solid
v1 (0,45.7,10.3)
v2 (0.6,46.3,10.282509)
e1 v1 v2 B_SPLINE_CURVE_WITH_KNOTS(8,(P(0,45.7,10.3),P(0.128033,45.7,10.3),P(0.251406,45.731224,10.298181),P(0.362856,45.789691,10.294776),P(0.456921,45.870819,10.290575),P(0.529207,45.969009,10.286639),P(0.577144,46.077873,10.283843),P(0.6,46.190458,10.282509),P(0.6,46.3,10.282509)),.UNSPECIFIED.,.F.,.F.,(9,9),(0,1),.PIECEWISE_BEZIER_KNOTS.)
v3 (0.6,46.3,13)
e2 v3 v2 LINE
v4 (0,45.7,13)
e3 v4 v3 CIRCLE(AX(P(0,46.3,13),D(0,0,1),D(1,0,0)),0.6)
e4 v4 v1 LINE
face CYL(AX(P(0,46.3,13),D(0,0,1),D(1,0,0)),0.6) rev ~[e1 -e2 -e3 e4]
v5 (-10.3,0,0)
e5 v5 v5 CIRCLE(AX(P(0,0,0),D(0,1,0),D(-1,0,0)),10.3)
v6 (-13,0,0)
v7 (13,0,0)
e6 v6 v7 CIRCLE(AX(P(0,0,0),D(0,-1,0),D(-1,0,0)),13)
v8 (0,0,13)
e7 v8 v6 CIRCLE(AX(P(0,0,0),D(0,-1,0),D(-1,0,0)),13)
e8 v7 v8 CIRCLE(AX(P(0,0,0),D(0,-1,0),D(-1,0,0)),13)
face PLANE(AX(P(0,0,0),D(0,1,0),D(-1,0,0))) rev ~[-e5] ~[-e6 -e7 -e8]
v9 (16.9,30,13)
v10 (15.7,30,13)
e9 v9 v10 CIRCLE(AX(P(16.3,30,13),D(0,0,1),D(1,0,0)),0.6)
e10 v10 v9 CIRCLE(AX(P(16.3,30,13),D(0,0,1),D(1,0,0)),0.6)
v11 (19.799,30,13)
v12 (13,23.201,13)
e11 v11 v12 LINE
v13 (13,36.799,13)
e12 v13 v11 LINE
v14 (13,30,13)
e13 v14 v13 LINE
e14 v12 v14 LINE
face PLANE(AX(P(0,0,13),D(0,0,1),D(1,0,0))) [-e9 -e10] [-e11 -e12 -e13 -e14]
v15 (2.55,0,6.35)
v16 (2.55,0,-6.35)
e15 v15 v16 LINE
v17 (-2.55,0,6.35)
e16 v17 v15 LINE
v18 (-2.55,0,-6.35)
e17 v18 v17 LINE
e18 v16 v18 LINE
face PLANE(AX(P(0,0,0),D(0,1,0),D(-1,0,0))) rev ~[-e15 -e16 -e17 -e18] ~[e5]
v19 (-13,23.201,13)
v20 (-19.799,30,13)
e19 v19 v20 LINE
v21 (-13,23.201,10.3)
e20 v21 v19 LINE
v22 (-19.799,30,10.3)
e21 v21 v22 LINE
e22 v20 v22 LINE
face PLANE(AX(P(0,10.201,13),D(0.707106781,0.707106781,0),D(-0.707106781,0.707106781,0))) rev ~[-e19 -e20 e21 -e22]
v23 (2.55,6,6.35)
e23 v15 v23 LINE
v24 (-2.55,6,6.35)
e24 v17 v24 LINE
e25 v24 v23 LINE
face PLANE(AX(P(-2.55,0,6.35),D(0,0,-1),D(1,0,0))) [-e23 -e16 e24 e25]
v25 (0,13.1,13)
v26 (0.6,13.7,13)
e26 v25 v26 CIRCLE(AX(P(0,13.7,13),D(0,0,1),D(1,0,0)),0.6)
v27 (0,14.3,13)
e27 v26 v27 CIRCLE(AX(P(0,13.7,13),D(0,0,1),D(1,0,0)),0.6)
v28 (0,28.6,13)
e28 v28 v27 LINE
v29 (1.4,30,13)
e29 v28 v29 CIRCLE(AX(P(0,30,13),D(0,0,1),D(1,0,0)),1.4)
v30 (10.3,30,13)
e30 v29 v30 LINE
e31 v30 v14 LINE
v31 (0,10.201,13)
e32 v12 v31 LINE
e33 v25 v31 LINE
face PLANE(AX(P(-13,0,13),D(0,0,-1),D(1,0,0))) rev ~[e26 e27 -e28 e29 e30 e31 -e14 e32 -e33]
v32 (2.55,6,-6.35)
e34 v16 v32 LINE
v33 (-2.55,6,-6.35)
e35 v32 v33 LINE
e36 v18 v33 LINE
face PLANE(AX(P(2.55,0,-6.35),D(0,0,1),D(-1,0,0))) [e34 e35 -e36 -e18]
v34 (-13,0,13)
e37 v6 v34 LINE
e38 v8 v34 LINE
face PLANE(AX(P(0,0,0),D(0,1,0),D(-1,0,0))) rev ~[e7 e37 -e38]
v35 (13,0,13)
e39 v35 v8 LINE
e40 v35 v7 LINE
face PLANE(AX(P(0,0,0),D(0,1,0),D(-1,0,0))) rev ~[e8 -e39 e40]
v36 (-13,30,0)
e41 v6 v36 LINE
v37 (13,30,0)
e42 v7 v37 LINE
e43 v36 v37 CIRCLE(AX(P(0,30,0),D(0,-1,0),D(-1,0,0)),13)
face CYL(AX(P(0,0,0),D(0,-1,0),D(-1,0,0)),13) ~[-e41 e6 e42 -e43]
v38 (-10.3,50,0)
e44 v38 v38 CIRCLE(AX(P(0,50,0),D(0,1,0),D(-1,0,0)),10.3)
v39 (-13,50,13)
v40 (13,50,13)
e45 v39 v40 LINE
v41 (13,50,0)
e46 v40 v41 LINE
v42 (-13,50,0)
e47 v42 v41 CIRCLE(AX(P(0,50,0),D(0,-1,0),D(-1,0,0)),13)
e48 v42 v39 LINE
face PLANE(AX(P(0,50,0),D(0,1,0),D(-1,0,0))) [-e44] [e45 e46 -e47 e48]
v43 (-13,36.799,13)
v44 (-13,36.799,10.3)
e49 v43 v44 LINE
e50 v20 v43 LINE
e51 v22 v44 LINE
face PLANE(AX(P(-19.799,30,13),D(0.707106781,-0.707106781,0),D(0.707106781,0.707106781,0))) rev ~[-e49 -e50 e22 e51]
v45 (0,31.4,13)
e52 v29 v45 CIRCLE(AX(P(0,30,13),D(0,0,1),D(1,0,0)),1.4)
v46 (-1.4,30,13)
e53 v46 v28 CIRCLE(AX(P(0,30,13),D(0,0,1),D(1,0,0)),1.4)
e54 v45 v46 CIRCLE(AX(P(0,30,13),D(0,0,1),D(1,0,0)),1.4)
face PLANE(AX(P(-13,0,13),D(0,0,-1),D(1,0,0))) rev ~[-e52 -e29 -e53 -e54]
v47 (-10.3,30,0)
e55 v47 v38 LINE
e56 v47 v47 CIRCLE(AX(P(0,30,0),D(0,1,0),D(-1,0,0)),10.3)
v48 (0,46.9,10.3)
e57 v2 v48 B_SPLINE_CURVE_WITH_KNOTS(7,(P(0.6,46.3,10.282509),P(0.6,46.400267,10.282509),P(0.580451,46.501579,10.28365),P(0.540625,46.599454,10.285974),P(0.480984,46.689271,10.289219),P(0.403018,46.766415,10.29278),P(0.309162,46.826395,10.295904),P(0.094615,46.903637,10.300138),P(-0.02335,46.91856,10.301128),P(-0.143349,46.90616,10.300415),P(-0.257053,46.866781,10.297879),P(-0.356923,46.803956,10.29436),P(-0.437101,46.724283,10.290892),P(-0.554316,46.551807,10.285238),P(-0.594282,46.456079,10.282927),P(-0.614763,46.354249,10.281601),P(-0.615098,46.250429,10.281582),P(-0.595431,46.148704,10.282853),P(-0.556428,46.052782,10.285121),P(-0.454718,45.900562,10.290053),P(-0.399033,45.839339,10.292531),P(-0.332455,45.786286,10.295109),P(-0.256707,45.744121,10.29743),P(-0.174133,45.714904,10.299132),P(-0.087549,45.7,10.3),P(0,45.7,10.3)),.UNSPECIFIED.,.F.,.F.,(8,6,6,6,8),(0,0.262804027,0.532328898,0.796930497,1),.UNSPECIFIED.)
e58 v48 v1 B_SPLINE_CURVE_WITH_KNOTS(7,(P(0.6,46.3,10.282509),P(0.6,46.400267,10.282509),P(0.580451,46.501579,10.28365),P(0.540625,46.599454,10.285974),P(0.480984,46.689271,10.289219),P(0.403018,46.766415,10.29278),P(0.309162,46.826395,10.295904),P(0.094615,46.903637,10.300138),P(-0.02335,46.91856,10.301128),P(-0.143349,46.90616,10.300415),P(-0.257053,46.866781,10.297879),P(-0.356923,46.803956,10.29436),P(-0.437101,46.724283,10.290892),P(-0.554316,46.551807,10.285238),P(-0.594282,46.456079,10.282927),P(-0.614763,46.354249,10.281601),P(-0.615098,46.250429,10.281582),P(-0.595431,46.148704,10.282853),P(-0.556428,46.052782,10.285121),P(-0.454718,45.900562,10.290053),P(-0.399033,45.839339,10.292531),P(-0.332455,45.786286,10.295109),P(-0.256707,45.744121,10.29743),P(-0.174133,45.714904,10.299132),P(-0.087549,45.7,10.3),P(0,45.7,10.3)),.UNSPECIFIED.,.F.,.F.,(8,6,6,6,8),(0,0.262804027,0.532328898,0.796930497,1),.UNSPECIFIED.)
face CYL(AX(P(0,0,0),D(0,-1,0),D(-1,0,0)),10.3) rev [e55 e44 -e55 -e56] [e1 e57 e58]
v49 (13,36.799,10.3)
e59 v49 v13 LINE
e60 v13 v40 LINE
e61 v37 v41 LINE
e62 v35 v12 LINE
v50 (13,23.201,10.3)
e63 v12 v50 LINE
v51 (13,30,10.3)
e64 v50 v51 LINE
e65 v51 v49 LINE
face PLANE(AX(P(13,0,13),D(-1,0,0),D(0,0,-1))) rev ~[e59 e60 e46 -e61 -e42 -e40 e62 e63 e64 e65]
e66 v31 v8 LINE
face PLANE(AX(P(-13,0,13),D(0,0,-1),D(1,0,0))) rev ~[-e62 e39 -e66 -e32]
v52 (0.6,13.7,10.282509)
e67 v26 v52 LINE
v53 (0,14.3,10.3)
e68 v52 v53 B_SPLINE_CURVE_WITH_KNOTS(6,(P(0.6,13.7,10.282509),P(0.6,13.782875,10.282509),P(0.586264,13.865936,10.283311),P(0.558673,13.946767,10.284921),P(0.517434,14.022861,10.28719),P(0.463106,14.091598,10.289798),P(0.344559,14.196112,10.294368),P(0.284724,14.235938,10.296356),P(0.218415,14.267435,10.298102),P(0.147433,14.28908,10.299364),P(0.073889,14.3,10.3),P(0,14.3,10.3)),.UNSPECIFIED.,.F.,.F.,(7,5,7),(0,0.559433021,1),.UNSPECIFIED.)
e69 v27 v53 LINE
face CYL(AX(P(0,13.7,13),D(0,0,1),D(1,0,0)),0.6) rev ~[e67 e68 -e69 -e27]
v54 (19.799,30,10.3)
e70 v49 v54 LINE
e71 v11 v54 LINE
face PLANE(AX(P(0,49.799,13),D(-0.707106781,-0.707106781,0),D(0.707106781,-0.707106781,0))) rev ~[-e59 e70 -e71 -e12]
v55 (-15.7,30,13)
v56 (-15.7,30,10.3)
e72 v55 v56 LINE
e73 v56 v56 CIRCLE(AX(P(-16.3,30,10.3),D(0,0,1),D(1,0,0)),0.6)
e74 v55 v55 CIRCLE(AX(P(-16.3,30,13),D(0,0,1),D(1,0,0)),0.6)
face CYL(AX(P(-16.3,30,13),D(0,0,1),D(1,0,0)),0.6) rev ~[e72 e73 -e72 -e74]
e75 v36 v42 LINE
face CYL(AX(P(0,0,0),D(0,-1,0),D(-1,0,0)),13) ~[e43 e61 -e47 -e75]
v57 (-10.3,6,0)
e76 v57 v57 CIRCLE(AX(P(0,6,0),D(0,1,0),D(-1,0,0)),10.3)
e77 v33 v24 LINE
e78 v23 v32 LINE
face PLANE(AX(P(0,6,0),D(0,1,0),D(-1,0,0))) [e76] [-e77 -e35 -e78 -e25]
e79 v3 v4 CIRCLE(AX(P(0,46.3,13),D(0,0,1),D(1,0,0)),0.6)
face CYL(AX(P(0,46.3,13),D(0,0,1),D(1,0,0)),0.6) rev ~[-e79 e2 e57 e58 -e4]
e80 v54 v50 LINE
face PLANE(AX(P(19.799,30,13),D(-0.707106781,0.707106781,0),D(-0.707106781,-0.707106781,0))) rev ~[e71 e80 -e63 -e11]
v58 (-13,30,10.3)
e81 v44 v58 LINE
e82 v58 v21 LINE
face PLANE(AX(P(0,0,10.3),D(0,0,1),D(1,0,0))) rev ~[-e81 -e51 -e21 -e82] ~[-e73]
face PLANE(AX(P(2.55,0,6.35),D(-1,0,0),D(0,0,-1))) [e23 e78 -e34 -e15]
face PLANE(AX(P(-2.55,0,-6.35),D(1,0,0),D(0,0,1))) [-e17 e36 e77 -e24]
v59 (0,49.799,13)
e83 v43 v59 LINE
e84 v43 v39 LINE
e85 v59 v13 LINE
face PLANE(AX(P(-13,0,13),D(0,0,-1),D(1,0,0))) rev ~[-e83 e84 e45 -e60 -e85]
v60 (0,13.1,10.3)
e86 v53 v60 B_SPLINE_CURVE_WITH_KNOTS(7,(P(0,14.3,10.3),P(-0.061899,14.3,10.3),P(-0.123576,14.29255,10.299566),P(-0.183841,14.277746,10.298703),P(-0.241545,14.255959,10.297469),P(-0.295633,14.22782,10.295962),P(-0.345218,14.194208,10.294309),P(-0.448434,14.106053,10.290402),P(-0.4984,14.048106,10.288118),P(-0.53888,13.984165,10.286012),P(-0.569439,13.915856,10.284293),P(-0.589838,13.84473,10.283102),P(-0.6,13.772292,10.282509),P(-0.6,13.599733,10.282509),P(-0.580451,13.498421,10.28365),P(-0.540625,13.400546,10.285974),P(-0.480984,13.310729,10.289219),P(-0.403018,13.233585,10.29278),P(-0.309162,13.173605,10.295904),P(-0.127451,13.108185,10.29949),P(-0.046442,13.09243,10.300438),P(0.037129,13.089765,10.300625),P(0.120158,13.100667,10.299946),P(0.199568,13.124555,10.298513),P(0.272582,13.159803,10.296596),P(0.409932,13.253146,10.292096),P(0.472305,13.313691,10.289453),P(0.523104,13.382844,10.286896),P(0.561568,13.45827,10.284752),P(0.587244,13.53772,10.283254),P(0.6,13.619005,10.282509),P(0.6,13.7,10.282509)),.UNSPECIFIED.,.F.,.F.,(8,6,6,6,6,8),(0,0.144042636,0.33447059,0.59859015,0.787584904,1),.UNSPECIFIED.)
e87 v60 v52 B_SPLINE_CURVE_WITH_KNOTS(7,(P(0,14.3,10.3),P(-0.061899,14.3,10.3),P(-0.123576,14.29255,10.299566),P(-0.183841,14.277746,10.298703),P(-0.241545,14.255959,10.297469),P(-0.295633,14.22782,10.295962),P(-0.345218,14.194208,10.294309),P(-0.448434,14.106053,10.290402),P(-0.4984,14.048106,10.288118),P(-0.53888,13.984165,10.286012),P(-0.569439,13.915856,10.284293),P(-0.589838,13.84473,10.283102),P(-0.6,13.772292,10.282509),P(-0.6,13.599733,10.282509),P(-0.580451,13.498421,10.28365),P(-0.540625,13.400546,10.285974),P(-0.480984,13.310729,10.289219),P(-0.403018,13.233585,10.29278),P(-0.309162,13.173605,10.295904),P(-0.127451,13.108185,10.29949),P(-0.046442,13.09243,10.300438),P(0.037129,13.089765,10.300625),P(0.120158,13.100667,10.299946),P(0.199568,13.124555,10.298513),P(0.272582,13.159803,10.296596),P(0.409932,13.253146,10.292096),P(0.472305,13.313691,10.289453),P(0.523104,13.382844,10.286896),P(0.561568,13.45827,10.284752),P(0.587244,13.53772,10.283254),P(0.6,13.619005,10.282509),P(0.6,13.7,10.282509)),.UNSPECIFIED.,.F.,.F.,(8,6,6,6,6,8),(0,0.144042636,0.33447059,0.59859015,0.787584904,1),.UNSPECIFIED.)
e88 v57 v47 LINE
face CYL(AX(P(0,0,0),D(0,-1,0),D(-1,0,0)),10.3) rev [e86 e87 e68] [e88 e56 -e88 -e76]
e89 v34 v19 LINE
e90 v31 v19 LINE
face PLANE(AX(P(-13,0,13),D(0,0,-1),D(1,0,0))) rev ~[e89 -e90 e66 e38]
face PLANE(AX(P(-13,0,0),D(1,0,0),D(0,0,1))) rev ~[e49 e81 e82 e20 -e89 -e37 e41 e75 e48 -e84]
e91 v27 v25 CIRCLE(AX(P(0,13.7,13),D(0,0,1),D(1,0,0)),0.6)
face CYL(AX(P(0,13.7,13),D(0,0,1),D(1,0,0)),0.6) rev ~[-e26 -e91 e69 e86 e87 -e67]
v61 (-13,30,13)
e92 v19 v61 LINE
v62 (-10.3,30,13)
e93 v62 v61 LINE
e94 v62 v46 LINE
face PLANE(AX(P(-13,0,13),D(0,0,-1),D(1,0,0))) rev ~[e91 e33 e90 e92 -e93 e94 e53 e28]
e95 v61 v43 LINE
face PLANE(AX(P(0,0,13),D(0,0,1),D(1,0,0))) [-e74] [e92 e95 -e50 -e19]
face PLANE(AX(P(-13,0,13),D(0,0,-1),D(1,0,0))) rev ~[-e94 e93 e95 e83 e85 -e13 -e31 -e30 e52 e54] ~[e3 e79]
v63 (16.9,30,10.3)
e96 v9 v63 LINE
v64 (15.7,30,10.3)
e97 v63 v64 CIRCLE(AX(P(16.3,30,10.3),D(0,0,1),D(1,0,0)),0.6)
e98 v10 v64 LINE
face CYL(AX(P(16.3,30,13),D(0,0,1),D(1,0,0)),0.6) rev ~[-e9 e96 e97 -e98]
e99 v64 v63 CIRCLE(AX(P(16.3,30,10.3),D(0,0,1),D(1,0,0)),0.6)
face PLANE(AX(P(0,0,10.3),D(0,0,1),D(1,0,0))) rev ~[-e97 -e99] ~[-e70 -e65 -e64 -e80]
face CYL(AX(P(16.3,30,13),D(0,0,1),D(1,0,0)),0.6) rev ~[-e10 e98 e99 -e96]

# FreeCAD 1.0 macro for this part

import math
import FreeCAD as App
import Part
import Sketcher

V = App.Vector

doc = App.newDocument("Part")
body = doc.addObject("PartDesign::Body", "Body")

# Sketch on XZ plane
sketch1 = doc.addObject("Sketcher::SketchObject", "Sketch")
body.addObject(sketch1)
sketch1.AttachmentSupport = (doc.XZ_Plane, [""])
sketch1.MapMode = "FlatFace"
sketch1.addGeometry(Part.Circle(V(0, 0, 0), V(0, 0, 1), 10), False)
sketch1.addGeometry(Part.LineSegment(V(3, 6, 0), V(-3, 6, 0)), False)
sketch1.addGeometry(Part.LineSegment(V(-3, 6, 0), V(-3, -6, 0)), False)
sketch1.addGeometry(Part.LineSegment(V(-3, -6, 0), V(3, -6, 0)), False)
sketch1.addGeometry(Part.LineSegment(V(3, -6, 0), V(3, 6, 0)), False)
sketch1.addConstraint(Sketcher.Constraint("Coincident", 1, 2, 2, 1))
sketch1.addConstraint(Sketcher.Constraint("Coincident", 2, 2, 3, 1))
sketch1.addConstraint(Sketcher.Constraint("Coincident", 3, 2, 4, 1))
sketch1.addConstraint(Sketcher.Constraint("Coincident", 4, 2, 1, 1))
sketch1.addConstraint(Sketcher.Constraint("Horizontal", 1))
sketch1.addConstraint(Sketcher.Constraint("Vertical", 2))
sketch1.addConstraint(Sketcher.Constraint("Horizontal", 3))
sketch1.addConstraint(Sketcher.Constraint("Vertical", 4))
sketch1.addConstraint(Sketcher.Constraint("Coincident", 0, 3, -1, 1))
sketch1.addConstraint(Sketcher.Constraint("Symmetric", 1, 2, 3, 2, -1, 1))
sketch1.addConstraint(Sketcher.Constraint("Diameter", 0, 20.6))
sketch1.addConstraint(Sketcher.Constraint("DistanceX", 1, 2, 1, 1, 5.1))
sketch1.addConstraint(Sketcher.Constraint("DistanceY", 2, 2, 2, 1, 12.7))
pad1 = doc.addObject("PartDesign::Pad", "Pad")
body.addObject(pad1)
pad1.Profile = sketch1
pad1.Length = 6
pad1.Reversed = True

# Sketch on XZ plane
sketch2 = doc.addObject("Sketcher::SketchObject", "Sketch001")
body.addObject(sketch2)
sketch2.AttachmentSupport = (doc.XZ_Plane, [""])
sketch2.MapMode = "FlatFace"
sketch2.addGeometry(Part.Circle(V(0, 0, 0), V(0, 0, 1), 13), False)
sketch2.addGeometry(Part.Circle(V(0, 0, 0), V(0, 0, 1), 10), False)
sketch2.addConstraint(Sketcher.Constraint("Coincident", 0, 3, -1, 1))
sketch2.addConstraint(Sketcher.Constraint("Coincident", 1, 3, -1, 1))
sketch2.addConstraint(Sketcher.Constraint("Diameter", 0, 26.0))
sketch2.addConstraint(Sketcher.Constraint("Diameter", 1, 20.6))
pad2 = doc.addObject("PartDesign::Pad", "Pad001")
body.addObject(pad2)
pad2.Profile = sketch2
pad2.Length = 30
pad2.Reversed = True

# Sketch on XZ plane
sketch3 = doc.addObject("Sketcher::SketchObject", "Sketch002")
body.addObject(sketch3)
sketch3.AttachmentSupport = (doc.XZ_Plane, [""])
sketch3.MapMode = "FlatFace"
sketch3.addGeometry(Part.LineSegment(V(-13, 0, 0), V(-13, 13, 0)), False)
sketch3.addGeometry(Part.LineSegment(V(-13, 13, 0), V(13, 13, 0)), False)
sketch3.addGeometry(Part.LineSegment(V(13, 13, 0), V(13, 0, 0)), False)
sketch3.addGeometry(Part.ArcOfCircle(Part.Circle(V(0, 0, 0), V(0, 0, 1), 13), math.radians(180), math.radians(360)), False)
sketch3.addGeometry(Part.Circle(V(0, 0, 0), V(0, 0, 1), 10), False)
sketch3.addConstraint(Sketcher.Constraint("Coincident", 0, 2, 1, 1))
sketch3.addConstraint(Sketcher.Constraint("Coincident", 1, 2, 2, 1))
sketch3.addConstraint(Sketcher.Constraint("Tangent", 2, 2, 3, 2))
sketch3.addConstraint(Sketcher.Constraint("Tangent", 3, 1, 0, 1))
sketch3.addConstraint(Sketcher.Constraint("Vertical", 0))
sketch3.addConstraint(Sketcher.Constraint("Horizontal", 1))
sketch3.addConstraint(Sketcher.Constraint("Vertical", 2))
sketch3.addConstraint(Sketcher.Constraint("Coincident", 3, 3, -1, 1))
sketch3.addConstraint(Sketcher.Constraint("Coincident", 4, 3, -1, 1))
sketch3.addConstraint(Sketcher.Constraint("Radius", 3, 13.0))
sketch3.addConstraint(Sketcher.Constraint("Diameter", 4, 20.6))
sketch3.addConstraint(Sketcher.Constraint("DistanceY", 0, 1, 0, 2, 13.0))
pad3 = doc.addObject("PartDesign::Pad", "Pad002")
body.addObject(pad3)
pad3.Profile = sketch3
pad3.Length = 50
pad3.Reversed = True

# Sketch on XY plane
sketch4 = doc.addObject("Sketcher::SketchObject", "Sketch003")
body.addObject(sketch4)
sketch4.AttachmentSupport = (doc.XY_Plane, [""])
sketch4.MapMode = "FlatFace"
sketch4.AttachmentOffset = App.Placement(V(0, 0, 13), App.Rotation())
sketch4.addGeometry(Part.LineSegment(V(0, 10.2, 0), V(19.8, 30, 0)), False)
sketch4.addGeometry(Part.LineSegment(V(19.8, 30, 0), V(0, 49.8, 0)), False)
sketch4.addGeometry(Part.LineSegment(V(0, 49.8, 0), V(-19.8, 30, 0)), False)
sketch4.addGeometry(Part.LineSegment(V(-19.8, 30, 0), V(0, 10.2, 0)), False)
sketch4.addGeometry(Part.Circle(V(0, 13.7, 0), V(0, 0, 1), 0.6), False)
sketch4.addGeometry(Part.Circle(V(-16.3, 30, 0), V(0, 0, 1), 0.6), False)
sketch4.addGeometry(Part.ArcOfCircle(Part.Circle(V(0, 30, 0), V(0, 0, 1), 1.4), math.radians(0), math.radians(90)), False)
sketch4.addGeometry(Part.ArcOfCircle(Part.Circle(V(0, 30, 0), V(0, 0, 1), 1.4), math.radians(-90), math.radians(0)), False)
sketch4.addGeometry(Part.ArcOfCircle(Part.Circle(V(0, 30, 0), V(0, 0, 1), 1.4), math.radians(180), math.radians(270)), False)
sketch4.addGeometry(Part.ArcOfCircle(Part.Circle(V(0, 30, 0), V(0, 0, 1), 1.4), math.radians(90), math.radians(180)), False)
sketch4.addGeometry(Part.Circle(V(16.3, 30, 0), V(0, 0, 1), 0.6), False)
sketch4.addGeometry(Part.Circle(V(0, 46.3, 0), V(0, 0, 1), 0.6), False)
sketch4.addConstraint(Sketcher.Constraint("Coincident", 0, 2, 1, 1))
sketch4.addConstraint(Sketcher.Constraint("Coincident", 1, 2, 2, 1))
sketch4.addConstraint(Sketcher.Constraint("Coincident", 2, 2, 3, 1))
sketch4.addConstraint(Sketcher.Constraint("Coincident", 3, 2, 0, 1))
sketch4.addConstraint(Sketcher.Constraint("Tangent", 6, 1, 7, 2))
sketch4.addConstraint(Sketcher.Constraint("Tangent", 7, 1, 8, 2))
sketch4.addConstraint(Sketcher.Constraint("Tangent", 8, 1, 9, 2))
sketch4.addConstraint(Sketcher.Constraint("Tangent", 9, 1, 6, 2))
sketch4.addConstraint(Sketcher.Constraint("Equal", 4, 5))
sketch4.addConstraint(Sketcher.Constraint("Equal", 6, 7))
sketch4.addConstraint(Sketcher.Constraint("Equal", 5, 10))
sketch4.addConstraint(Sketcher.Constraint("Equal", 10, 11))
sketch4.addConstraint(Sketcher.Constraint("Symmetric", 5, 3, 10, 3, -2))
sketch4.addConstraint(Sketcher.Constraint("Symmetric", 0, 2, 2, 2, -2))
sketch4.addConstraint(Sketcher.Constraint("Symmetric", 6, 1, 8, 1, -2))
sketch4.addConstraint(Sketcher.Constraint("PointOnObject", 4, 3, -2))
sketch4.addConstraint(Sketcher.Constraint("PointOnObject", 11, 3, -2))
sketch4.addConstraint(Sketcher.Constraint("PointOnObject", 1, 2, -2))
sketch4.addConstraint(Sketcher.Constraint("PointOnObject", 3, 2, -2))
sketch4.addConstraint(Sketcher.Constraint("PointOnObject", 7, 1, -2))
sketch4.addConstraint(Sketcher.Constraint("PointOnObject", 9, 1, -2))
sketch4.addConstraint(Sketcher.Constraint("Perpendicular", 0, 1))
sketch4.addConstraint(Sketcher.Constraint("Perpendicular", 1, 2))
sketch4.addConstraint(Sketcher.Constraint("Horizontal", 5, 3, 6, 3))
sketch4.addConstraint(Sketcher.Constraint("Horizontal", 10, 3, 0, 2))
sketch4.addConstraint(Sketcher.Constraint("Horizontal", 2, 2, 6, 1))
sketch4.addConstraint(Sketcher.Constraint("Diameter", 4, 1.2))
sketch4.addConstraint(Sketcher.Constraint("Radius", 6, 1.4))
sketch4.addConstraint(Sketcher.Constraint("Distance", 0, 28.0))
sketch4.addConstraint(Sketcher.Constraint("DistanceX", 5, 3, -1, 1, 16.3))
sketch4.addConstraint(Sketcher.Constraint("DistanceY", 4, 3, 5, 3, 16.3))
sketch4.addConstraint(Sketcher.Constraint("DistanceY", 6, 3, 11, 3, 16.3))
sketch4.addConstraint(Sketcher.Constraint("DistanceY", -1, 1, 5, 3, 30.0))
pad4 = doc.addObject("PartDesign::Pad", "Pad003")
body.addObject(pad4)
pad4.Profile = sketch4
pad4.Length = 2.7
pad4.Reversed = True

# Sketch on XY plane
sketch5 = doc.addObject("Sketcher::SketchObject", "Sketch004")
body.addObject(sketch5)
sketch5.AttachmentSupport = (doc.XY_Plane, [""])
sketch5.MapMode = "FlatFace"
sketch5.AttachmentOffset = App.Placement(V(0, 0, 13), App.Rotation())
sketch5.addGeometry(Part.Circle(V(0, 46.3, 0), V(0, 0, 1), 0.6), False)
sketch5.addConstraint(Sketcher.Constraint("PointOnObject", 0, 3, -2))
sketch5.addConstraint(Sketcher.Constraint("Diameter", 0, 1.2))
sketch5.addConstraint(Sketcher.Constraint("DistanceY", -1, 1, 0, 3, 46.3))
pocket1 = doc.addObject("PartDesign::Pocket", "Pocket")
body.addObject(pocket1)
pocket1.Profile = sketch5
pocket1.Length = 10

# Sketch on XY plane
sketch6 = doc.addObject("Sketcher::SketchObject", "Sketch005")
body.addObject(sketch6)
sketch6.AttachmentSupport = (doc.XY_Plane, [""])
sketch6.MapMode = "FlatFace"
sketch6.AttachmentOffset = App.Placement(V(0, 0, 13), App.Rotation())
sketch6.addGeometry(Part.Circle(V(0, 13.7, 0), V(0, 0, 1), 0.6), False)
sketch6.addConstraint(Sketcher.Constraint("PointOnObject", 0, 3, -2))
sketch6.addConstraint(Sketcher.Constraint("Diameter", 0, 1.2))
sketch6.addConstraint(Sketcher.Constraint("DistanceY", -1, 1, 0, 3, 13.7))
pocket2 = doc.addObject("PartDesign::Pocket", "Pocket001")
body.addObject(pocket2)
pocket2.Profile = sketch6
pocket2.Length = 10

doc.recompute()
